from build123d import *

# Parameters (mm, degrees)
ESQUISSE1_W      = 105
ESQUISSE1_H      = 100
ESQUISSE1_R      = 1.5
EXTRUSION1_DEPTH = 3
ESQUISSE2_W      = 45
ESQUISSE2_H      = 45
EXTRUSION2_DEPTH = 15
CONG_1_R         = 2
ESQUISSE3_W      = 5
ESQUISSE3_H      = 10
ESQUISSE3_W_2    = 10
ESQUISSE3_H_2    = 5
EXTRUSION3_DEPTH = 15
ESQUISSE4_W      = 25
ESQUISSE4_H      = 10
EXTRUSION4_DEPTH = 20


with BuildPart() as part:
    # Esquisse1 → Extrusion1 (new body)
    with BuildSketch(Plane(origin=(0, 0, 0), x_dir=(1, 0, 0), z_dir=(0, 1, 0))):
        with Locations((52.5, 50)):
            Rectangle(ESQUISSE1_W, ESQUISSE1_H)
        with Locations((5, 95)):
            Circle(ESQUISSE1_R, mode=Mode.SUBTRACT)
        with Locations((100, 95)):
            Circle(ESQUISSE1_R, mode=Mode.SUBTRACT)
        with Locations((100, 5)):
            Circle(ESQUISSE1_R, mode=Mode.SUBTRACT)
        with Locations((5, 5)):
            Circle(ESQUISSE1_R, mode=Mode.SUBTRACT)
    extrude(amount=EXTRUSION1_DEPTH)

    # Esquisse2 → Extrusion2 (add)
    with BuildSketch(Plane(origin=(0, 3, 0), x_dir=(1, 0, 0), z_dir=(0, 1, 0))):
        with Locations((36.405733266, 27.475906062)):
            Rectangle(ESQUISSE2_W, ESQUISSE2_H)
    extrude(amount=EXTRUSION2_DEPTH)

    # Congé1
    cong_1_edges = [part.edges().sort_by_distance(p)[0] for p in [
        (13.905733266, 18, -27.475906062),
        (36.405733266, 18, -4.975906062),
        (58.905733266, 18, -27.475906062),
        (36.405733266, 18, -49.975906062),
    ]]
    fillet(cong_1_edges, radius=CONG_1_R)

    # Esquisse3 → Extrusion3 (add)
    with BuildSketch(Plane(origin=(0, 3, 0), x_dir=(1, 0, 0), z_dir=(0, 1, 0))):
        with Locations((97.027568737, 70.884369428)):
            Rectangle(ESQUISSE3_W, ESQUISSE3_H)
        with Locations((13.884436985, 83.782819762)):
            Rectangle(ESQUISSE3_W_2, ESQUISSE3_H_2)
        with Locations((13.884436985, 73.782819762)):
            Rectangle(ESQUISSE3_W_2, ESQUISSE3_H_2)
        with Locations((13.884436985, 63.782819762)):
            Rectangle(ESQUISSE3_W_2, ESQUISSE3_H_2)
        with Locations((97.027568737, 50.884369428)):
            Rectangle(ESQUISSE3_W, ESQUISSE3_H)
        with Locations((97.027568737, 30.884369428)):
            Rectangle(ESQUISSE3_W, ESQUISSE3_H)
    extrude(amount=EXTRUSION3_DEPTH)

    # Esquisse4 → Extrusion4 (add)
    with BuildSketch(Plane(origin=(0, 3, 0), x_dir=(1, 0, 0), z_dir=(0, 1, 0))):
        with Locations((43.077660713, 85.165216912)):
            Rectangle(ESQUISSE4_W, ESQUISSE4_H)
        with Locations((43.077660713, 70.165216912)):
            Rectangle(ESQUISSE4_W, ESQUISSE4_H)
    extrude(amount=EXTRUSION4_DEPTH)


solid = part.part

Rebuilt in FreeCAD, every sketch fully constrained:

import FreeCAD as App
import Part
import Sketcher
from FreeCAD import Vector


def edges_at(feature, points):
    """Names of the edges that pass closest to the given points."""
    edges = feature.Shape.Edges
    near = lambda p: min(range(len(edges)), key=lambda i: edges[i].distToShape(Part.Vertex(*p))[0])
    return sorted({f"Edge{near(p) + 1}" for p in points})

doc = App.newDocument("Part")
body = doc.addObject("PartDesign::Body", "Body")

# Sketch on XZ plane
sketch1 = body.newObject("Sketcher::SketchObject", "Sketch")
sketch1.AttachmentSupport = (doc.getObject("XZ_Plane"), [""])
sketch1.MapMode = "FlatFace"
sketch1.addGeometry([
    Part.LineSegment(Vector(0, -100, 0), Vector(0, 0, 0)),  # 0
    Part.LineSegment(Vector(0, 0, 0), Vector(105, 0, 0)),  # 1
    Part.LineSegment(Vector(105, 0, 0), Vector(105, -100, 0)),  # 2
    Part.LineSegment(Vector(105, -100, 0), Vector(0, -100, 0)),  # 3
    Part.Circle(Vector(5, -5, 0), Vector(0, 0, 1), 1.5),  # 4
    Part.Circle(Vector(100, -5, 0), Vector(0, 0, 1), 1.5),  # 5
    Part.Circle(Vector(5, -95, 0), Vector(0, 0, 1), 1.5),  # 6
    Part.Circle(Vector(100, -95, 0), Vector(0, 0, 1), 1.5),  # 7
], False)
sketch1.addConstraint([
    Sketcher.Constraint("Coincident", 0, 2, 1, 1),
    Sketcher.Constraint("Coincident", 1, 2, 2, 1),
    Sketcher.Constraint("Coincident", 2, 2, 3, 1),
    Sketcher.Constraint("Coincident", 3, 2, 0, 1),
    Sketcher.Constraint("Vertical", 0),
    Sketcher.Constraint("Horizontal", 1),
    Sketcher.Constraint("Vertical", 2),
    Sketcher.Constraint("Horizontal", 3),
    Sketcher.Constraint("Coincident", 0, 2, -1, 1),
    Sketcher.Constraint("Equal", 4, 5),
    Sketcher.Constraint("Equal", 5, 6),
    Sketcher.Constraint("Equal", 6, 7),
    Sketcher.Constraint("Horizontal", 4, 3, 5, 3),
    Sketcher.Constraint("Horizontal", 6, 3, 7, 3),
    Sketcher.Constraint("Vertical", 4, 3, 6, 3),
    Sketcher.Constraint("Vertical", 5, 3, 7, 3),
    Sketcher.Constraint("Diameter", 4, 3.0),
    Sketcher.Constraint("DistanceX", 1, 1, 1, 2, 105.0),
    Sketcher.Constraint("DistanceY", 0, 1, 0, 2, 100.0),
    Sketcher.Constraint("DistanceX", -1, 1, 4, 3, 5.0),
    Sketcher.Constraint("DistanceY", 4, 3, -1, 1, 5.0),
    Sketcher.Constraint("DistanceX", -1, 1, 5, 3, 100.0),
    Sketcher.Constraint("DistanceY", 6, 3, -1, 1, 95.0),
])
pad1 = body.newObject("PartDesign::Pad", "Pad")
pad1.Profile = sketch1
pad1.Length = 3
pad1.Reversed = True

# Sketch on XZ plane
sketch2 = body.newObject("Sketcher::SketchObject", "Sketch001")
sketch2.AttachmentSupport = (doc.getObject("XZ_Plane"), [""])
sketch2.MapMode = "FlatFace"
sketch2.AttachmentOffset = App.Placement(Vector(0, 0, -3), App.Rotation())
sketch2.addGeometry([
    Part.LineSegment(Vector(14, -50, 0), Vector(14, -5, 0)),
    Part.LineSegment(Vector(14, -5, 0), Vector(59, -5, 0)),
    Part.LineSegment(Vector(59, -5, 0), Vector(59, -50, 0)),
    Part.LineSegment(Vector(59, -50, 0), Vector(14, -50, 0)),
], False)
sketch2.addConstraint([
    Sketcher.Constraint("Coincident", 0, 2, 1, 1),
    Sketcher.Constraint("Coincident", 1, 2, 2, 1),
    Sketcher.Constraint("Coincident", 2, 2, 3, 1),
    Sketcher.Constraint("Coincident", 3, 2, 0, 1),
    Sketcher.Constraint("Vertical", 0),
    Sketcher.Constraint("Horizontal", 1),
    Sketcher.Constraint("Vertical", 2),
    Sketcher.Constraint("Horizontal", 3),
    Sketcher.Constraint("Equal", 3, 0),
    Sketcher.Constraint("DistanceX", 1, 1, 1, 2, 45.0),
    Sketcher.Constraint("DistanceX", -1, 1, 0, 2, 13.905733),
    Sketcher.Constraint("DistanceY", 0, 2, -1, 1, 4.975906),
])
pad2 = body.newObject("PartDesign::Pad", "Pad001")
pad2.Profile = sketch2
pad2.Length = 15
pad2.Reversed = True
doc.recompute()

fillet = body.newObject("PartDesign::Fillet", "Fillet")
fillet.Base = (pad2, edges_at(pad2, [
    (13.906, 18, -27.476),
    (36.406, 18, -4.976),
    (58.906, 18, -27.476),
    (36.406, 18, -49.976),
]))
fillet.Radius = 2

# Sketch on XZ plane
sketch3 = body.newObject("Sketcher::SketchObject", "Sketch002")
sketch3.AttachmentSupport = (doc.getObject("XZ_Plane"), [""])
sketch3.MapMode = "FlatFace"
sketch3.AttachmentOffset = App.Placement(Vector(0, 0, -3), App.Rotation())
sketch3.addGeometry([
    Part.LineSegment(Vector(95, -76, 0), Vector(95, -66, 0)),  # 0
    Part.LineSegment(Vector(95, -66, 0), Vector(100, -66, 0)),  # 1
    Part.LineSegment(Vector(100, -66, 0), Vector(100, -76, 0)),  # 2
    Part.LineSegment(Vector(100, -76, 0), Vector(95, -76, 0)),  # 3
    Part.LineSegment(Vector(9, -86, 0), Vector(9, -81, 0)),  # 4
    Part.LineSegment(Vector(9, -81, 0), Vector(19, -81, 0)),  # 5
    Part.LineSegment(Vector(19, -81, 0), Vector(19, -86, 0)),  # 6
    Part.LineSegment(Vector(19, -86, 0), Vector(9, -86, 0)),  # 7
    Part.LineSegment(Vector(9, -76, 0), Vector(9, -71, 0)),  # 8
    Part.LineSegment(Vector(9, -71, 0), Vector(19, -71, 0)),  # 9
    Part.LineSegment(Vector(19, -71, 0), Vector(19, -76, 0)),  # 10
    Part.LineSegment(Vector(19, -76, 0), Vector(9, -76, 0)),  # 11
    Part.LineSegment(Vector(9, -66, 0), Vector(9, -61, 0)),  # 12
    Part.LineSegment(Vector(9, -61, 0), Vector(19, -61, 0)),  # 13
    Part.LineSegment(Vector(19, -61, 0), Vector(19, -66, 0)),  # 14
    Part.LineSegment(Vector(19, -66, 0), Vector(9, -66, 0)),  # 15
    Part.LineSegment(Vector(95, -56, 0), Vector(95, -46, 0)),  # 16
    Part.LineSegment(Vector(95, -46, 0), Vector(100, -46, 0)),  # 17
    Part.LineSegment(Vector(100, -46, 0), Vector(100, -56, 0)),  # 18
    Part.LineSegment(Vector(100, -56, 0), Vector(95, -56, 0)),  # 19
    Part.LineSegment(Vector(95, -36, 0), Vector(95, -26, 0)),  # 20
    Part.LineSegment(Vector(95, -26, 0), Vector(100, -26, 0)),  # 21
    Part.LineSegment(Vector(100, -26, 0), Vector(100, -36, 0)),  # 22
    Part.LineSegment(Vector(100, -36, 0), Vector(95, -36, 0)),  # 23
], False)
sketch3.addConstraint([
    Sketcher.Constraint("Coincident", 0, 2, 1, 1),
    Sketcher.Constraint("Coincident", 1, 2, 2, 1),
    Sketcher.Constraint("Coincident", 2, 2, 3, 1),
    Sketcher.Constraint("Coincident", 3, 2, 0, 1),
    Sketcher.Constraint("Coincident", 4, 2, 5, 1),
    Sketcher.Constraint("Coincident", 5, 2, 6, 1),
    Sketcher.Constraint("Coincident", 6, 2, 7, 1),
    Sketcher.Constraint("Coincident", 7, 2, 4, 1),
    Sketcher.Constraint("Coincident", 8, 2, 9, 1),
    Sketcher.Constraint("Coincident", 9, 2, 10, 1),
    Sketcher.Constraint("Coincident", 10, 2, 11, 1),
    Sketcher.Constraint("Coincident", 11, 2, 8, 1),
    Sketcher.Constraint("Coincident", 12, 2, 13, 1),
    Sketcher.Constraint("Coincident", 13, 2, 14, 1),
    Sketcher.Constraint("Coincident", 14, 2, 15, 1),
    Sketcher.Constraint("Coincident", 15, 2, 12, 1),
    Sketcher.Constraint("Coincident", 16, 2, 17, 1),
    Sketcher.Constraint("Coincident", 17, 2, 18, 1),
    Sketcher.Constraint("Coincident", 18, 2, 19, 1),
    Sketcher.Constraint("Coincident", 19, 2, 16, 1),
    Sketcher.Constraint("Coincident", 20, 2, 21, 1),
    Sketcher.Constraint("Coincident", 21, 2, 22, 1),
    Sketcher.Constraint("Coincident", 22, 2, 23, 1),
    Sketcher.Constraint("Coincident", 23, 2, 20, 1),
    Sketcher.Constraint("Vertical", 0),
    Sketcher.Constraint("Horizontal", 1),
    Sketcher.Constraint("Vertical", 2),
    Sketcher.Constraint("Horizontal", 3),
    Sketcher.Constraint("Vertical", 4),
    Sketcher.Constraint("Horizontal", 5),
    Sketcher.Constraint("Vertical", 6),
    Sketcher.Constraint("Horizontal", 7),
    Sketcher.Constraint("Vertical", 8),
    Sketcher.Constraint("Horizontal", 9),
    Sketcher.Constraint("Vertical", 10),
    Sketcher.Constraint("Horizontal", 11),
    Sketcher.Constraint("Vertical", 12),
    Sketcher.Constraint("Horizontal", 13),
    Sketcher.Constraint("Vertical", 14),
    Sketcher.Constraint("Horizontal", 15),
    Sketcher.Constraint("Vertical", 16),
    Sketcher.Constraint("Horizontal", 17),
    Sketcher.Constraint("Vertical", 18),
    Sketcher.Constraint("Horizontal", 19),
    Sketcher.Constraint("Vertical", 20),
    Sketcher.Constraint("Horizontal", 21),
    Sketcher.Constraint("Vertical", 22),
    Sketcher.Constraint("Horizontal", 23),
    Sketcher.Constraint("Vertical", 7, 2, 8, 2),
    Sketcher.Constraint("Vertical", 6, 2, 9, 2),
    Sketcher.Constraint("Vertical", 11, 2, 12, 2),
    Sketcher.Constraint("Vertical", 10, 2, 13, 2),
    Sketcher.Constraint("Vertical", 3, 2, 16, 2),
    Sketcher.Constraint("Vertical", 2, 2, 17, 2),
    Sketcher.Constraint("Vertical", 19, 2, 20, 2),
    Sketcher.Constraint("Vertical", 18, 2, 21, 2),
    Sketcher.Constraint("Equal", 15, 0),
    Sketcher.Constraint("Equal", 23, 4),
    Sketcher.Constraint("Equal", 6, 8),
    Sketcher.Constraint("Equal", 10, 12),
    Sketcher.Constraint("Equal", 2, 16),
    Sketcher.Constraint("Equal", 18, 20),
    Sketcher.Constraint("DistanceX", 1, 1, 1, 2, 5.0),
    Sketcher.Constraint("DistanceX", 5, 1, 5, 2, 10.0),
    Sketcher.Constraint("DistanceY", 4, 2, 8, 2, 10.0),
    Sketcher.Constraint("DistanceY", 8, 2, 12, 2, 10.0),
    Sketcher.Constraint("DistanceY", 0, 2, 16, 2, 20.0),
    Sketcher.Constraint("DistanceY", 16, 2, 20, 2, 20.0),
    Sketcher.Constraint("DistanceX", -1, 1, 0, 2, 94.527569),
    Sketcher.Constraint("DistanceY", 0, 2, -1, 1, 65.884369),
    Sketcher.Constraint("DistanceY", 4, 2, -1, 1, 81.28282),
    Sketcher.Constraint("DistanceX", 4, 2, 3, 2, 85.643132),
])
pad3 = body.newObject("PartDesign::Pad", "Pad002")
pad3.Profile = sketch3
pad3.Length = 15
pad3.Reversed = True

# Sketch on XZ plane
sketch4 = body.newObject("Sketcher::SketchObject", "Sketch003")
sketch4.AttachmentSupport = (doc.getObject("XZ_Plane"), [""])
sketch4.MapMode = "FlatFace"
sketch4.AttachmentOffset = App.Placement(Vector(0, 0, -3), App.Rotation())
sketch4.addGeometry([
    Part.LineSegment(Vector(31, -90, 0), Vector(31, -80, 0)),  # 0
    Part.LineSegment(Vector(31, -80, 0), Vector(56, -80, 0)),  # 1
    Part.LineSegment(Vector(56, -80, 0), Vector(56, -90, 0)),  # 2
    Part.LineSegment(Vector(56, -90, 0), Vector(31, -90, 0)),  # 3
    Part.LineSegment(Vector(31, -75, 0), Vector(31, -65, 0)),  # 4
    Part.LineSegment(Vector(31, -65, 0), Vector(56, -65, 0)),  # 5
    Part.LineSegment(Vector(56, -65, 0), Vector(56, -75, 0)),  # 6
    Part.LineSegment(Vector(56, -75, 0), Vector(31, -75, 0)),  # 7
], False)
sketch4.addConstraint([
    Sketcher.Constraint("Coincident", 0, 2, 1, 1),
    Sketcher.Constraint("Coincident", 1, 2, 2, 1),
    Sketcher.Constraint("Coincident", 2, 2, 3, 1),
    Sketcher.Constraint("Coincident", 3, 2, 0, 1),
    Sketcher.Constraint("Coincident", 4, 2, 5, 1),
    Sketcher.Constraint("Coincident", 5, 2, 6, 1),
    Sketcher.Constraint("Coincident", 6, 2, 7, 1),
    Sketcher.Constraint("Coincident", 7, 2, 4, 1),
    Sketcher.Constraint("Vertical", 0),
    Sketcher.Constraint("Horizontal", 1),
    Sketcher.Constraint("Vertical", 2),
    Sketcher.Constraint("Horizontal", 3),
    Sketcher.Constraint("Vertical", 4),
    Sketcher.Constraint("Horizontal", 5),
    Sketcher.Constraint("Vertical", 6),
    Sketcher.Constraint("Horizontal", 7),
    Sketcher.Constraint("Vertical", 3, 2, 4, 2),
    Sketcher.Constraint("Vertical", 2, 2, 5, 2),
    Sketcher.Constraint("Equal", 2, 4),
    Sketcher.Constraint("DistanceX", 1, 1, 1, 2, 25.0),
    Sketcher.Constraint("DistanceY", 0, 1, 0, 2, 10.0),
    Sketcher.Constraint("DistanceY", 0, 2, 4, 2, 15.0),
    Sketcher.Constraint("DistanceX", -1, 1, 0, 2, 30.577661),
    Sketcher.Constraint("DistanceY", 0, 2, -1, 1, 80.165217),
])
pad4 = body.newObject("PartDesign::Pad", "Pad003")
pad4.Profile = sketch4
pad4.Length = 20
pad4.Reversed = True

doc.recompute()
